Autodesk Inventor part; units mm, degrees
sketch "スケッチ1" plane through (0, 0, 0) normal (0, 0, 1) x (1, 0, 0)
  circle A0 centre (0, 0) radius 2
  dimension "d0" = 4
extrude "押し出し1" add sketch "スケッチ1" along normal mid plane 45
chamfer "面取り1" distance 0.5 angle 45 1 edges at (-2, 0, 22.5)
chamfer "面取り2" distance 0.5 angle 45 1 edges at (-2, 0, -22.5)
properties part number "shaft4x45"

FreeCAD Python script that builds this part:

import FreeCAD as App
import Part
import Sketcher

V = App.Vector


def edges_at(feature, points):
    """Names of the edges that pass closest to the given points."""
    edges = feature.Shape.Edges
    near = lambda p: min(range(len(edges)), key=lambda i: edges[i].distToShape(Part.Vertex(*p))[0])
    return sorted({f"Edge{near(p) + 1}" for p in points})

doc = App.newDocument("Part")
params = doc.addObject("Spreadsheet::Sheet", "Params")
for row, (alias, value) in enumerate([
    ("sketch1_diameter", "4 mm"),
    ("pad1_length", "45 mm"),
    ("chamfer_size", "0.5 mm"),
    ("chamfer2_size", "0.5 mm"),
], start=1):
    params.set(f"A{row}", alias)
    params.set(f"B{row}", "=" + value)
    params.setAlias(f"B{row}", alias)

body = doc.addObject("PartDesign::Body", "Body")

sketch1 = body.newObject("Sketcher::SketchObject", "Sketch")
sketch1.AttachmentSupport = (doc.getObject("XY_Plane"), [""])
sketch1.MapMode = "FlatFace"
sketch1.addGeometry(Part.Circle(V(0, 0, 0), V(0, 0, 1), 2), False)
sketch1.addConstraint(Sketcher.Constraint("Coincident", 0, 3, -1, 1))
sketch1.addConstraint(Sketcher.Constraint("Diameter", 0, 4.0))
sketch1.setExpression("Constraints[1]", "Params.sketch1_diameter")
pad1 = body.newObject("PartDesign::Pad", "Pad")
pad1.Profile = sketch1
pad1.setExpression("Length", "Params.pad1_length")
pad1.Midplane = True
doc.recompute()

chamfer = body.newObject("PartDesign::Chamfer", "Chamfer")
chamfer.Base = (pad1, edges_at(pad1, [(-2, 0, 22.5)]))
chamfer.setExpression("Size", "Params.chamfer_size")
doc.recompute()

chamfer2 = body.newObject("PartDesign::Chamfer", "Chamfer001")
chamfer2.Base = (chamfer, edges_at(chamfer, [(-2, 0, -22.5)]))
chamfer2.setExpression("Size", "Params.chamfer2_size")

doc.recompute()
